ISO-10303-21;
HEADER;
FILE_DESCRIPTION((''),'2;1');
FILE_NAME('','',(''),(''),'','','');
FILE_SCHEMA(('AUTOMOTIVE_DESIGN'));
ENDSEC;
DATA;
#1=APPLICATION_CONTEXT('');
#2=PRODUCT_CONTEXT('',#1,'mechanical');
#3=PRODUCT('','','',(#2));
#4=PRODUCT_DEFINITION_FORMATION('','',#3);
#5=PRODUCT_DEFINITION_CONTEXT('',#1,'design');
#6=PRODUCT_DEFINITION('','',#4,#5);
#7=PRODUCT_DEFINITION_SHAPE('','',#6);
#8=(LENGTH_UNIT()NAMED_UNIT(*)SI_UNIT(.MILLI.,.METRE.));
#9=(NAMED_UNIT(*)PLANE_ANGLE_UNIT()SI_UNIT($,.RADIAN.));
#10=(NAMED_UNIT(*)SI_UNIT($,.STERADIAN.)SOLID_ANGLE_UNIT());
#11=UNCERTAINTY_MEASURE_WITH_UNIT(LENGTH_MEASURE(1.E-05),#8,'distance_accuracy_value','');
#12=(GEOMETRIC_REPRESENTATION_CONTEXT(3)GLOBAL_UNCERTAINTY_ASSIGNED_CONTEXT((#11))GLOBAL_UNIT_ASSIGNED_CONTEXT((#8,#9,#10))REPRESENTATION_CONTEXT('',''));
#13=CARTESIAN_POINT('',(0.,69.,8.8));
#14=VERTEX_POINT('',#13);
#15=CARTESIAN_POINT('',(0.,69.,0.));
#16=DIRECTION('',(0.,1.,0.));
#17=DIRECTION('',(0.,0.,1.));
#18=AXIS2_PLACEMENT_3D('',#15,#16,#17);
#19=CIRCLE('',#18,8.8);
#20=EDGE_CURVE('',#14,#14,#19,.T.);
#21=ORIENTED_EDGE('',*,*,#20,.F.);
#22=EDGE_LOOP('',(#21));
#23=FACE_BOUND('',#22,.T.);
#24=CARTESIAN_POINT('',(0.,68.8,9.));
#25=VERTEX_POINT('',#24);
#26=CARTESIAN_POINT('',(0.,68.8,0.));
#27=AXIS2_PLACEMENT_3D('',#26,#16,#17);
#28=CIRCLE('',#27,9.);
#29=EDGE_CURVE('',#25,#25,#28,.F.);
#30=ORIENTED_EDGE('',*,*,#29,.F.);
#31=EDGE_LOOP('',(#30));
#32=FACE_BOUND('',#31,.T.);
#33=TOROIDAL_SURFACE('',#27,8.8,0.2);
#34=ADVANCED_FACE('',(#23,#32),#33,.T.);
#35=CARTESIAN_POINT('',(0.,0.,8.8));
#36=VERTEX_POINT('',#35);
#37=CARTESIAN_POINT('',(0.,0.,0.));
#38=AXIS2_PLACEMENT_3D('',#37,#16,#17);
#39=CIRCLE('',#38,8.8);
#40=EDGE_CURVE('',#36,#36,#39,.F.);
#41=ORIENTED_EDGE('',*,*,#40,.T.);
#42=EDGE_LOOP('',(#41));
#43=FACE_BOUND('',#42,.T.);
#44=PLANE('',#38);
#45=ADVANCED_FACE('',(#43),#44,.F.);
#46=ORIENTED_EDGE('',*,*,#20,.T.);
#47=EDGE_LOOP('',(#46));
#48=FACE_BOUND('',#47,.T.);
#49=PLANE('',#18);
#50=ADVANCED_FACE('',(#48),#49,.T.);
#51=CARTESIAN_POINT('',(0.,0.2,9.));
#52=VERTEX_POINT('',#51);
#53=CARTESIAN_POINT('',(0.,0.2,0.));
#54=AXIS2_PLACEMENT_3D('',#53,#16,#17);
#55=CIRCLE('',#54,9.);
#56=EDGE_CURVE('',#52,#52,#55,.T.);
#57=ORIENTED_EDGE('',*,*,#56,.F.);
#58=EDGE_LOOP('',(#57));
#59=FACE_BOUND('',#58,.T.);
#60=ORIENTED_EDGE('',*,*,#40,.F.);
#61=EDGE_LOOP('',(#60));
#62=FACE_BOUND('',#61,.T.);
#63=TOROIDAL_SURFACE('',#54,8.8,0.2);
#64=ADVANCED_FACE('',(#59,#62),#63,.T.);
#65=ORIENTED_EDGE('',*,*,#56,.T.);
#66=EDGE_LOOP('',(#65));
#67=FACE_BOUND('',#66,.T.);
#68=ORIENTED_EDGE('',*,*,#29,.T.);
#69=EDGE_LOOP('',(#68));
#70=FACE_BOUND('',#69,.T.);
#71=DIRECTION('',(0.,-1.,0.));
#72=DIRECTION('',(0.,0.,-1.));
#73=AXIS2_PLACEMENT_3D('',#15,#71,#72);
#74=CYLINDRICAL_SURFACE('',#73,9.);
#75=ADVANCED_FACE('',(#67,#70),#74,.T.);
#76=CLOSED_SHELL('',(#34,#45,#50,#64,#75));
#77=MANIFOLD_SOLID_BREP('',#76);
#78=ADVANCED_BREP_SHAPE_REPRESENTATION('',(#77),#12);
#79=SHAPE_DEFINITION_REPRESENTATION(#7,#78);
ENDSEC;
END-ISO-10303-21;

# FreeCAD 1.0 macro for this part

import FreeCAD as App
import Part
import Sketcher

V = App.Vector


def edges_at(feature, points):
    """Names of the edges that pass closest to the given points."""
    edges = feature.Shape.Edges
    near = lambda p: min(range(len(edges)), key=lambda i: edges[i].distToShape(Part.Vertex(*p))[0])
    return sorted({f"Edge{near(p) + 1}" for p in points})

doc = App.newDocument("Part")
body = doc.addObject("PartDesign::Body", "Body")

# Sketch on XZ plane
sketch1 = body.newObject("Sketcher::SketchObject", "Sketch")
sketch1.AttachmentSupport = (doc.getObject("XZ_Plane"), [""])
sketch1.MapMode = "FlatFace"
sketch1.addGeometry(Part.Circle(V(0, 0, 0), V(0, 0, 1), 9), False)
sketch1.addConstraint([
    Sketcher.Constraint("Coincident", 0, 3, -1, 1),
    Sketcher.Constraint("Diameter", 0, 18.0),
])
pad1 = body.newObject("PartDesign::Pad", "Pad")
pad1.Profile = sketch1
pad1.Length = 69
pad1.Reversed = True
doc.recompute()

fillet = body.newObject("PartDesign::Fillet", "Fillet")
fillet.Base = (pad1, edges_at(pad1, [(0, 0, -9), (0, 69, -9)]))
fillet.Radius = 0.2

doc.recompute()
